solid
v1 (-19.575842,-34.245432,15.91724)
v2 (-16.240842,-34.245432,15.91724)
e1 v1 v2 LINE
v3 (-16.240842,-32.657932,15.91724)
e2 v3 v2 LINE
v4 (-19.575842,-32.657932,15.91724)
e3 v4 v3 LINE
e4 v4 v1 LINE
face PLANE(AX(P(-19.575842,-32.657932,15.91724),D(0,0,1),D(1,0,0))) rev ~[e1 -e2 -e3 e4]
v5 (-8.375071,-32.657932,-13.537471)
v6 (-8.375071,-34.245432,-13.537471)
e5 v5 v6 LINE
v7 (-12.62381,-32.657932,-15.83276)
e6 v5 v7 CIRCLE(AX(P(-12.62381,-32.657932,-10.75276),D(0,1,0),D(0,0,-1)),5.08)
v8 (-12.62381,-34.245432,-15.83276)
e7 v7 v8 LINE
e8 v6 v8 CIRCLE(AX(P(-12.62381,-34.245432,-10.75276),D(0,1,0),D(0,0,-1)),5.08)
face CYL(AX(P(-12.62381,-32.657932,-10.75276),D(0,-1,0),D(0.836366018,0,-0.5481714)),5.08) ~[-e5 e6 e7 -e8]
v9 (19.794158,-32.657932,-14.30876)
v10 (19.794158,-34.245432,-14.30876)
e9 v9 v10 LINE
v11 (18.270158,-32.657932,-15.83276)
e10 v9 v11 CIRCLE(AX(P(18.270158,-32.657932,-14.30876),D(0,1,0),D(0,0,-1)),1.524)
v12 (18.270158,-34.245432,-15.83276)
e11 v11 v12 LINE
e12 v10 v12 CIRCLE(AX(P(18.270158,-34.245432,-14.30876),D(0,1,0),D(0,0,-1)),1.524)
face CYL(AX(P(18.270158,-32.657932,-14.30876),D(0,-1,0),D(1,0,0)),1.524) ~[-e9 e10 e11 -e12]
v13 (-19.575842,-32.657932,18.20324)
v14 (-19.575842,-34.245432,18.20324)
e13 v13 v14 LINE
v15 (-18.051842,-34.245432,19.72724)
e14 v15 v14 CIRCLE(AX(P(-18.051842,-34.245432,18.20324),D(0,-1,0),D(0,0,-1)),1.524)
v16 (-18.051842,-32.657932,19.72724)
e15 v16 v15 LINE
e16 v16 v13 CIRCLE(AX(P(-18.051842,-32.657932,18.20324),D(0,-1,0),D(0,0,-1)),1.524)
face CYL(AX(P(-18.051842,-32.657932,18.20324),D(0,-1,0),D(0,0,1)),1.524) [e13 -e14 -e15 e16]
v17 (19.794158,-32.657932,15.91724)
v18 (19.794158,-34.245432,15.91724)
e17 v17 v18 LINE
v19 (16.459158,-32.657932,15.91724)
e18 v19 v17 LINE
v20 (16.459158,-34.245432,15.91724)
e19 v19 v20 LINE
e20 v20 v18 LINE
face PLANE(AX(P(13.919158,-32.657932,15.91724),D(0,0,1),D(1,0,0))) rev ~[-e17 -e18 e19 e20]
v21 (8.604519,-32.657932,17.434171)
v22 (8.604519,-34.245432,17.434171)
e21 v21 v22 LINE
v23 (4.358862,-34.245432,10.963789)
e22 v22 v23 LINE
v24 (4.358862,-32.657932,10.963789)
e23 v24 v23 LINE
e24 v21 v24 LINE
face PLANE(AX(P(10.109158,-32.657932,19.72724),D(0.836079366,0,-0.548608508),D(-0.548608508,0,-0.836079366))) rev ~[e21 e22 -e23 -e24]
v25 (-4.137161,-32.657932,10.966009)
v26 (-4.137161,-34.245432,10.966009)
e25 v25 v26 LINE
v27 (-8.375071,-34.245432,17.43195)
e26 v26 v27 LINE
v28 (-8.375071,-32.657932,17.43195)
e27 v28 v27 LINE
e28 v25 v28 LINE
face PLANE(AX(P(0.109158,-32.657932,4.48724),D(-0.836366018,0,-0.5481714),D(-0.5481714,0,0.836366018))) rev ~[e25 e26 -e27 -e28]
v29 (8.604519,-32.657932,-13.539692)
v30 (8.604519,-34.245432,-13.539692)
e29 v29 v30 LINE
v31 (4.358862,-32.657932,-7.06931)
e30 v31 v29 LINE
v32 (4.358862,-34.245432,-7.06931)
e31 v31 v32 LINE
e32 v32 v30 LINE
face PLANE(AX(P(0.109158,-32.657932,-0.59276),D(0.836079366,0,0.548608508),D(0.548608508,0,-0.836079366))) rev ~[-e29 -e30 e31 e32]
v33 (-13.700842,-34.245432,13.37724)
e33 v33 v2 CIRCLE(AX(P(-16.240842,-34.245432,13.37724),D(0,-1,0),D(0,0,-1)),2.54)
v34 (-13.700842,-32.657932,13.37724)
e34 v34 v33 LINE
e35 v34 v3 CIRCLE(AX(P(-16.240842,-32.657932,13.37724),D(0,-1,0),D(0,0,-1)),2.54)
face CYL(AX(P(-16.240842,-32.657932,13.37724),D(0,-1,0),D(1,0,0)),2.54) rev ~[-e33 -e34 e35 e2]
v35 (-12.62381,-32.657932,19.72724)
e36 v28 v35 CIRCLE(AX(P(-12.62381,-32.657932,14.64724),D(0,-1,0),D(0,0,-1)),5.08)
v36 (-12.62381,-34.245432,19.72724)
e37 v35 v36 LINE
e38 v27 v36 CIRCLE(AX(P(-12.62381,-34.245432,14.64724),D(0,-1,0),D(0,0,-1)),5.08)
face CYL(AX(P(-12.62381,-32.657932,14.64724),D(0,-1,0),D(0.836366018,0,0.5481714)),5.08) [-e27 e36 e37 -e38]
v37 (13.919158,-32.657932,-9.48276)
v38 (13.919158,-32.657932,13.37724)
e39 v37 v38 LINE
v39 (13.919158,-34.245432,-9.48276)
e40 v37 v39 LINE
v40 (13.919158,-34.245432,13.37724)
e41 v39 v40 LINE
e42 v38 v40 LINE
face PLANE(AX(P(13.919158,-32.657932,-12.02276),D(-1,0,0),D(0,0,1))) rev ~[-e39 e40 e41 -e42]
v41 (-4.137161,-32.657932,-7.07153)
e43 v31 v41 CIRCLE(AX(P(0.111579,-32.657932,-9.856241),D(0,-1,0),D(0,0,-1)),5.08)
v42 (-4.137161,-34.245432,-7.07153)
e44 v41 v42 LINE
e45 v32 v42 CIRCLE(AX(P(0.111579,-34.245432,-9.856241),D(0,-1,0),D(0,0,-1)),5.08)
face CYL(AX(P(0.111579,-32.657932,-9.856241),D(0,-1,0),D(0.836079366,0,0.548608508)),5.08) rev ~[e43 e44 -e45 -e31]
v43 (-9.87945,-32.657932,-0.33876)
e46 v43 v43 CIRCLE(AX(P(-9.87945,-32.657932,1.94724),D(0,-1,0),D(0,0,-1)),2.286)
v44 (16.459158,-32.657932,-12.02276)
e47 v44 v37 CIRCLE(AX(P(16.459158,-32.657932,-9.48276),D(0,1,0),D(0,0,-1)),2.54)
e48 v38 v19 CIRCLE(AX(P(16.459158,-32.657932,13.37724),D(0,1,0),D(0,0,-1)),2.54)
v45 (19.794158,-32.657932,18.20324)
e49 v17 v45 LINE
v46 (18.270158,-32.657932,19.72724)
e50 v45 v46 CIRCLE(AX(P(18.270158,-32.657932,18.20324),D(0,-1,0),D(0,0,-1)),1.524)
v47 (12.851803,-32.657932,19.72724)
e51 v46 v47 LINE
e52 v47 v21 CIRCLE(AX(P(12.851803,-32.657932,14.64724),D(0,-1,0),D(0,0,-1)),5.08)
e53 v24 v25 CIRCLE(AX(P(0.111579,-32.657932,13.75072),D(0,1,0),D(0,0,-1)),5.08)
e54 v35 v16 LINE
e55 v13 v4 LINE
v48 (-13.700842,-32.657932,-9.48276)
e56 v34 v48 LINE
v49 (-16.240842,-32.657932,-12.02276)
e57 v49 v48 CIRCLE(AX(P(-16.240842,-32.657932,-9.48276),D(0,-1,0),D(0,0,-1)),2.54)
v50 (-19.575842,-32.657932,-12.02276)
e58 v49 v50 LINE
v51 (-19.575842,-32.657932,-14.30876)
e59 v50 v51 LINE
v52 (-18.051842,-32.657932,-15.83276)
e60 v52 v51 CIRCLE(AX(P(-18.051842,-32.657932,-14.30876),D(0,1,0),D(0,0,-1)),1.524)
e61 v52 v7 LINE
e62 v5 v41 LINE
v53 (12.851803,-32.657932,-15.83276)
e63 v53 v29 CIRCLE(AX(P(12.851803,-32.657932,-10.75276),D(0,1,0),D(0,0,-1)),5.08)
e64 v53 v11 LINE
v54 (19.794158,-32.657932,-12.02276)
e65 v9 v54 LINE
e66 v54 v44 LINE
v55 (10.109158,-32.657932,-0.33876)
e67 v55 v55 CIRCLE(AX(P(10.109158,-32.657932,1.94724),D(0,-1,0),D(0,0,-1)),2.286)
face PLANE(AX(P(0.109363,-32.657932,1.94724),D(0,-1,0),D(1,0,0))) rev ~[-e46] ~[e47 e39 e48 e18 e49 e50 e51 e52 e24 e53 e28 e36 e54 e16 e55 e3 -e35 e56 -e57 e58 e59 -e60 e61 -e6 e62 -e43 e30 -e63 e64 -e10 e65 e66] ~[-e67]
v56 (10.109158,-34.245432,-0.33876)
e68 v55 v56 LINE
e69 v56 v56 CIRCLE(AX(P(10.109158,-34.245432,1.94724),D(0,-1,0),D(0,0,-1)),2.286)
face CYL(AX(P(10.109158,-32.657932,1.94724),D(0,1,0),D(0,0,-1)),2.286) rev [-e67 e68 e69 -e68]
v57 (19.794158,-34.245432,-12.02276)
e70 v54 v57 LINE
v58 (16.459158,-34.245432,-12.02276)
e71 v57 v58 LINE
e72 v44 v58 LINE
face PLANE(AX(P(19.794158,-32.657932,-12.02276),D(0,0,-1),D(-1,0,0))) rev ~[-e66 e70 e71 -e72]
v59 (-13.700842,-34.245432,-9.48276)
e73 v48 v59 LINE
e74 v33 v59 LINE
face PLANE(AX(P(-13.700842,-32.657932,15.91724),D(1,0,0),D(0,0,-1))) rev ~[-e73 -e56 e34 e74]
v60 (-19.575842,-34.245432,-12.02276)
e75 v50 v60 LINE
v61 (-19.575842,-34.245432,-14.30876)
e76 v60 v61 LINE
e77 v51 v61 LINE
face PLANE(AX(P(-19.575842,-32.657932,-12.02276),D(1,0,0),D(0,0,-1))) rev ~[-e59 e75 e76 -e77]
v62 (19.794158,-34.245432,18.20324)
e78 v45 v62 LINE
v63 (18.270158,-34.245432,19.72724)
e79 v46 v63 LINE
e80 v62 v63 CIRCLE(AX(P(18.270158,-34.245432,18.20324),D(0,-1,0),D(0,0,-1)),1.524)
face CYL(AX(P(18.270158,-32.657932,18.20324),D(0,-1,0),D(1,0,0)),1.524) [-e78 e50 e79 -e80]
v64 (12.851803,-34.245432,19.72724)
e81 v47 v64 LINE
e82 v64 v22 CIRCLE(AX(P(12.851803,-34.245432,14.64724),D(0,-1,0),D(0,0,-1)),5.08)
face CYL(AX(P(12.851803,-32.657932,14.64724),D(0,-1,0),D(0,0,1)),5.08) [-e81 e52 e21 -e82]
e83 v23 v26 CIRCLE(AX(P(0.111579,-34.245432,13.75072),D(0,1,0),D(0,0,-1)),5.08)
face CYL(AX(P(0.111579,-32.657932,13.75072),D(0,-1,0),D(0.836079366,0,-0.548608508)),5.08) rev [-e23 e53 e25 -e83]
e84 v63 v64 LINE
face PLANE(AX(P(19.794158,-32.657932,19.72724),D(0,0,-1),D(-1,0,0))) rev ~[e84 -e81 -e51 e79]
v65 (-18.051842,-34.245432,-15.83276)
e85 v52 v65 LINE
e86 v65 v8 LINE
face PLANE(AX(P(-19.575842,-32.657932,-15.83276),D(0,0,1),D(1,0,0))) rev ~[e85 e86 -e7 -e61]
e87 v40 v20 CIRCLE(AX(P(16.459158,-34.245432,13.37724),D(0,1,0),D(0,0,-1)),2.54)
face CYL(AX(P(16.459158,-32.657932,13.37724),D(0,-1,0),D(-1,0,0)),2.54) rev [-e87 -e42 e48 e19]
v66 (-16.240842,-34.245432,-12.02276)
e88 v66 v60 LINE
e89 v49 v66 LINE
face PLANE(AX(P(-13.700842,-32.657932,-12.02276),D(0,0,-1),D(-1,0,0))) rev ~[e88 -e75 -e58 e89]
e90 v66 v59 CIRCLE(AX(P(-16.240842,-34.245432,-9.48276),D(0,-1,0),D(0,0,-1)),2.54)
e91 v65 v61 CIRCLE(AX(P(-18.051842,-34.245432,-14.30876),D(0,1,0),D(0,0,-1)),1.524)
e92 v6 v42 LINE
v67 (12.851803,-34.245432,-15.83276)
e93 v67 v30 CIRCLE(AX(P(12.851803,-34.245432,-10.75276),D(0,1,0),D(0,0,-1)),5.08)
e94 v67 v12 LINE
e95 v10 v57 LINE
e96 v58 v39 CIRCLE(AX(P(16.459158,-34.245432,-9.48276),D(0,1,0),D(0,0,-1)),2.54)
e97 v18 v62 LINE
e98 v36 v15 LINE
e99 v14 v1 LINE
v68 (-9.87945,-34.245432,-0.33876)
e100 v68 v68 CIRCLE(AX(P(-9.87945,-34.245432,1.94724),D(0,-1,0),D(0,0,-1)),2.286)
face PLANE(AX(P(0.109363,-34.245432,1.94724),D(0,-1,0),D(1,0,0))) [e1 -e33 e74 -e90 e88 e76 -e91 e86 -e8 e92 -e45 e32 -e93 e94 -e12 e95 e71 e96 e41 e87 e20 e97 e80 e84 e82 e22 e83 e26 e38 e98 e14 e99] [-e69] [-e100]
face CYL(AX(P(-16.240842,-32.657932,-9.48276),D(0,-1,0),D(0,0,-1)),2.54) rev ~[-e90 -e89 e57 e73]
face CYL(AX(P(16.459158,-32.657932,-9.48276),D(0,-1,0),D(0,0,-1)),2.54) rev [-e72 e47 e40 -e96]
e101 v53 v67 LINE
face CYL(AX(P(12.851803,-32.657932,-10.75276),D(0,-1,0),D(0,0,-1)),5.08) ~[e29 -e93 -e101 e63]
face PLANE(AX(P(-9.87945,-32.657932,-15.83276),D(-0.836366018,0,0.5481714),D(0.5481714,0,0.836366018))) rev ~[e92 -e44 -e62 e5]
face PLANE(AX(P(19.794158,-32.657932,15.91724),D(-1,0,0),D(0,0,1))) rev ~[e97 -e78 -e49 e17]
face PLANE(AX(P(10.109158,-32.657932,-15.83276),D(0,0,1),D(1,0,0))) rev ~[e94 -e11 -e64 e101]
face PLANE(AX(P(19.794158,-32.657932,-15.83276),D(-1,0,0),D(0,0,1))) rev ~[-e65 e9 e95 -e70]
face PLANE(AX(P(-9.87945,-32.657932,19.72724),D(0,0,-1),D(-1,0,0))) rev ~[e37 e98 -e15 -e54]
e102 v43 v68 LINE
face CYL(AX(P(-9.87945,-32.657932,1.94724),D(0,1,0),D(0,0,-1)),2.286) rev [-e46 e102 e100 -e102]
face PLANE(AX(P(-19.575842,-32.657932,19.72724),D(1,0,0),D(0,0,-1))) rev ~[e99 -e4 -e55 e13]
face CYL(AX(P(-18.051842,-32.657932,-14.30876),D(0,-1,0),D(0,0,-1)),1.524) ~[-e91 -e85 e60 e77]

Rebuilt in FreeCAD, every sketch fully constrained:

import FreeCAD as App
import Part
import Sketcher

V = App.Vector
Q = App.Units.Quantity


def edges_at(feature, points):
    """Names of the edges that pass closest to the given points."""
    edges = feature.Shape.Edges
    near = lambda p: min(range(len(edges)), key=lambda i: edges[i].distToShape(Part.Vertex(*p))[0])
    return sorted({f"Edge{near(p) + 1}" for p in points})

doc = App.newDocument("Part")
body = doc.addObject("PartDesign::Body", "Body")

# Sketch on XZ plane
sketch1 = doc.addObject("Sketcher::SketchObject", "Sketch")
body.addObject(sketch1)
sketch1.AttachmentSupport = (doc.XZ_Plane, [""])
sketch1.MapMode = "FlatFace"
sketch1.AttachmentOffset = App.Placement(V(0, 0, 32.657932), App.Rotation())
sketch1.addGeometry(Part.LineSegment(V(10.1, -15.8, 0), V(19.8, -15.8, 0)), False)
sketch1.addGeometry(Part.LineSegment(V(19.8, -15.8, 0), V(19.8, -12, 0)), False)
sketch1.addGeometry(Part.LineSegment(V(19.8, -12, 0), V(13.9, -12, 0)), False)
sketch1.addGeometry(Part.LineSegment(V(13.9, -12, 0), V(13.9, 15.9, 0)), False)
sketch1.addGeometry(Part.LineSegment(V(13.9, 15.9, 0), V(19.8, 15.9, 0)), False)
sketch1.addGeometry(Part.LineSegment(V(19.8, 15.9, 0), V(19.8, 19.7, 0)), False)
sketch1.addGeometry(Part.LineSegment(V(19.8, 19.7, 0), V(10.1, 19.7, 0)), False)
sketch1.addGeometry(Part.LineSegment(V(10.1, 19.7, 0), V(0.1, 4.5, 0)), False)
sketch1.addGeometry(Part.LineSegment(V(0.1, 4.5, 0), V(-9.9, 19.7, 0)), False)
sketch1.addGeometry(Part.LineSegment(V(-9.9, 19.7, 0), V(-19.6, 19.7, 0)), False)
sketch1.addGeometry(Part.LineSegment(V(-19.6, 19.7, 0), V(-19.6, 15.9, 0)), False)
sketch1.addGeometry(Part.LineSegment(V(-19.6, 15.9, 0), V(-13.7, 15.9, 0)), False)
sketch1.addGeometry(Part.LineSegment(V(-13.7, 15.9, 0), V(-13.7, -12, 0)), False)
sketch1.addGeometry(Part.LineSegment(V(-13.7, -12, 0), V(-19.6, -12, 0)), False)
sketch1.addGeometry(Part.LineSegment(V(-19.6, -12, 0), V(-19.6, -15.8, 0)), False)
sketch1.addGeometry(Part.LineSegment(V(-19.6, -15.8, 0), V(-9.9, -15.8, 0)), False)
sketch1.addGeometry(Part.LineSegment(V(-9.9, -15.8, 0), V(0.1, -0.6, 0)), False)
sketch1.addGeometry(Part.LineSegment(V(0.1, -0.6, 0), V(10.1, -15.8, 0)), False)
sketch1.addGeometry(Part.Circle(V(-9.9, 1.9, 0), V(0, 0, 1), 2.3), False)
sketch1.addGeometry(Part.Circle(V(10.1, 1.9, 0), V(0, 0, 1), 2.3), False)
sketch1.addConstraint(Sketcher.Constraint("Coincident", 0, 2, 1, 1))
sketch1.addConstraint(Sketcher.Constraint("Coincident", 1, 2, 2, 1))
sketch1.addConstraint(Sketcher.Constraint("Coincident", 2, 2, 3, 1))
sketch1.addConstraint(Sketcher.Constraint("Coincident", 3, 2, 4, 1))
sketch1.addConstraint(Sketcher.Constraint("Coincident", 4, 2, 5, 1))
sketch1.addConstraint(Sketcher.Constraint("Coincident", 5, 2, 6, 1))
sketch1.addConstraint(Sketcher.Constraint("Coincident", 6, 2, 7, 1))
sketch1.addConstraint(Sketcher.Constraint("Coincident", 7, 2, 8, 1))
sketch1.addConstraint(Sketcher.Constraint("Coincident", 8, 2, 9, 1))
sketch1.addConstraint(Sketcher.Constraint("Coincident", 9, 2, 10, 1))
sketch1.addConstraint(Sketcher.Constraint("Coincident", 10, 2, 11, 1))
sketch1.addConstraint(Sketcher.Constraint("Coincident", 11, 2, 12, 1))
sketch1.addConstraint(Sketcher.Constraint("Coincident", 12, 2, 13, 1))
sketch1.addConstraint(Sketcher.Constraint("Coincident", 13, 2, 14, 1))
sketch1.addConstraint(Sketcher.Constraint("Coincident", 14, 2, 15, 1))
sketch1.addConstraint(Sketcher.Constraint("Coincident", 15, 2, 16, 1))
sketch1.addConstraint(Sketcher.Constraint("Coincident", 16, 2, 17, 1))
sketch1.addConstraint(Sketcher.Constraint("Coincident", 17, 2, 0, 1))
sketch1.addConstraint(Sketcher.Constraint("Horizontal", 0))
sketch1.addConstraint(Sketcher.Constraint("Vertical", 1))
sketch1.addConstraint(Sketcher.Constraint("Horizontal", 2))
sketch1.addConstraint(Sketcher.Constraint("Vertical", 3))
sketch1.addConstraint(Sketcher.Constraint("Horizontal", 4))
sketch1.addConstraint(Sketcher.Constraint("Vertical", 5))
sketch1.addConstraint(Sketcher.Constraint("Horizontal", 6))
sketch1.addConstraint(Sketcher.Constraint("Horizontal", 9))
sketch1.addConstraint(Sketcher.Constraint("Vertical", 10))
sketch1.addConstraint(Sketcher.Constraint("Horizontal", 11))
sketch1.addConstraint(Sketcher.Constraint("Vertical", 12))
sketch1.addConstraint(Sketcher.Constraint("Horizontal", 13))
sketch1.addConstraint(Sketcher.Constraint("Vertical", 14))
sketch1.addConstraint(Sketcher.Constraint("Horizontal", 15))
sketch1.addConstraint(Sketcher.Constraint("Equal", 18, 19))
sketch1.addConstraint(Sketcher.Constraint("Horizontal", 18, 3, 19, 3))
sketch1.addConstraint(Sketcher.Constraint("Horizontal", 6, 2, 8, 2))
sketch1.addConstraint(Sketcher.Constraint("Horizontal", 4, 2, 10, 2))
sketch1.addConstraint(Sketcher.Constraint("Horizontal", 2, 2, 12, 2))
sketch1.addConstraint(Sketcher.Constraint("Horizontal", 0, 2, 14, 2))
sketch1.addConstraint(Sketcher.Constraint("Vertical", 1, 2, 4, 2))
sketch1.addConstraint(Sketcher.Constraint("Vertical", 19, 3, 6, 2))
sketch1.addConstraint(Sketcher.Constraint("Vertical", 18, 3, 8, 2))
sketch1.addConstraint(Sketcher.Constraint("Vertical", 10, 2, 13, 2))
sketch1.addConstraint(Sketcher.Constraint("Vertical", 8, 2, 15, 2))
sketch1.addConstraint(Sketcher.Constraint("Vertical", 7, 2, 16, 2))
sketch1.addConstraint(Sketcher.Constraint("Vertical", 6, 2, 17, 2))
sketch1.addConstraint(Sketcher.Constraint("Equal", 4, 11))
sketch1.addConstraint(Sketcher.Constraint("Equal", 1, 5))
sketch1.addConstraint(Sketcher.Constraint("Equal", 8, 16))
sketch1.addConstraint(Sketcher.Constraint("Diameter", 18, Q("0.18 in")))
sketch1.addConstraint(Sketcher.Constraint("DistanceY", 3, 1, 3, 2, Q("1.1 in")))
sketch1.addConstraint(Sketcher.Constraint("DistanceY", 1, 1, 1, 2, Q("0.15 in")))
sketch1.addConstraint(Sketcher.Constraint("DistanceY", 0, 2, 19, 3, Q("0.7 in")))
sketch1.addConstraint(Sketcher.Constraint("DistanceY", 18, 3, 7, 2, Q("0.1 in")))
sketch1.addConstraint(Sketcher.Constraint("DistanceX", 19, 3, 2, 2, Q("0.15 in")))
sketch1.addConstraint(Sketcher.Constraint("DistanceX", 9, 2, 7, 2, Q("0.775 in")))
sketch1.addConstraint(Sketcher.Constraint("DistanceX", 0, 1, 0, 2, Q("9.685 mm")))
sketch1.addConstraint(Sketcher.Constraint("DistanceX", 7, 2, 19, 3, Q("10 mm")))
sketch1.addConstraint(Sketcher.Constraint("DistanceX", 9, 2, 9, 1, Q("9.696392 mm")))
sketch1.addConstraint(Sketcher.Constraint("DistanceX", 18, 3, -1, 1, Q("9.87945 mm")))
sketch1.addConstraint(Sketcher.Constraint("DistanceY", -1, 1, 18, 3, Q("1.94724 mm")))
pad1 = doc.addObject("PartDesign::Pad", "Pad")
body.addObject(pad1)
pad1.Profile = sketch1
pad1.Length = Q("0.0625 in")
doc.recompute()

fillet = doc.addObject("PartDesign::Fillet", "Fillet")
body.addObject(fillet)
fillet.Base = (pad1, edges_at(pad1, [
    (10.109, -33.452, 19.727),
    (10.109, -33.452, -15.833),
    (0.109, -33.452, -0.593),
    (-9.879, -33.452, -15.833),
    (-9.879, -33.452, 19.727),
    (0.109, -33.452, 4.487),
]))
fillet.Radius = Q("0.2 in")
doc.recompute()

fillet2 = doc.addObject("PartDesign::Fillet", "Fillet001")
body.addObject(fillet2)
fillet2.Base = (fillet, edges_at(fillet, [
    (13.919, -33.452, 15.917),
    (13.919, -33.452, -12.023),
    (-13.701, -33.452, -12.023),
    (-13.701, -33.452, 15.917),
]))
fillet2.Radius = Q("0.1 in")
doc.recompute()

fillet3 = doc.addObject("PartDesign::Fillet", "Fillet002")
body.addObject(fillet3)
fillet3.Base = (fillet2, edges_at(fillet2, [
    (19.794, -33.452, 19.727),
    (19.794, -33.452, -15.833),
    (-19.576, -33.452, -15.833),
    (-19.576, -33.452, 19.727),
]))
fillet3.Radius = Q("0.06 in")

doc.recompute()
